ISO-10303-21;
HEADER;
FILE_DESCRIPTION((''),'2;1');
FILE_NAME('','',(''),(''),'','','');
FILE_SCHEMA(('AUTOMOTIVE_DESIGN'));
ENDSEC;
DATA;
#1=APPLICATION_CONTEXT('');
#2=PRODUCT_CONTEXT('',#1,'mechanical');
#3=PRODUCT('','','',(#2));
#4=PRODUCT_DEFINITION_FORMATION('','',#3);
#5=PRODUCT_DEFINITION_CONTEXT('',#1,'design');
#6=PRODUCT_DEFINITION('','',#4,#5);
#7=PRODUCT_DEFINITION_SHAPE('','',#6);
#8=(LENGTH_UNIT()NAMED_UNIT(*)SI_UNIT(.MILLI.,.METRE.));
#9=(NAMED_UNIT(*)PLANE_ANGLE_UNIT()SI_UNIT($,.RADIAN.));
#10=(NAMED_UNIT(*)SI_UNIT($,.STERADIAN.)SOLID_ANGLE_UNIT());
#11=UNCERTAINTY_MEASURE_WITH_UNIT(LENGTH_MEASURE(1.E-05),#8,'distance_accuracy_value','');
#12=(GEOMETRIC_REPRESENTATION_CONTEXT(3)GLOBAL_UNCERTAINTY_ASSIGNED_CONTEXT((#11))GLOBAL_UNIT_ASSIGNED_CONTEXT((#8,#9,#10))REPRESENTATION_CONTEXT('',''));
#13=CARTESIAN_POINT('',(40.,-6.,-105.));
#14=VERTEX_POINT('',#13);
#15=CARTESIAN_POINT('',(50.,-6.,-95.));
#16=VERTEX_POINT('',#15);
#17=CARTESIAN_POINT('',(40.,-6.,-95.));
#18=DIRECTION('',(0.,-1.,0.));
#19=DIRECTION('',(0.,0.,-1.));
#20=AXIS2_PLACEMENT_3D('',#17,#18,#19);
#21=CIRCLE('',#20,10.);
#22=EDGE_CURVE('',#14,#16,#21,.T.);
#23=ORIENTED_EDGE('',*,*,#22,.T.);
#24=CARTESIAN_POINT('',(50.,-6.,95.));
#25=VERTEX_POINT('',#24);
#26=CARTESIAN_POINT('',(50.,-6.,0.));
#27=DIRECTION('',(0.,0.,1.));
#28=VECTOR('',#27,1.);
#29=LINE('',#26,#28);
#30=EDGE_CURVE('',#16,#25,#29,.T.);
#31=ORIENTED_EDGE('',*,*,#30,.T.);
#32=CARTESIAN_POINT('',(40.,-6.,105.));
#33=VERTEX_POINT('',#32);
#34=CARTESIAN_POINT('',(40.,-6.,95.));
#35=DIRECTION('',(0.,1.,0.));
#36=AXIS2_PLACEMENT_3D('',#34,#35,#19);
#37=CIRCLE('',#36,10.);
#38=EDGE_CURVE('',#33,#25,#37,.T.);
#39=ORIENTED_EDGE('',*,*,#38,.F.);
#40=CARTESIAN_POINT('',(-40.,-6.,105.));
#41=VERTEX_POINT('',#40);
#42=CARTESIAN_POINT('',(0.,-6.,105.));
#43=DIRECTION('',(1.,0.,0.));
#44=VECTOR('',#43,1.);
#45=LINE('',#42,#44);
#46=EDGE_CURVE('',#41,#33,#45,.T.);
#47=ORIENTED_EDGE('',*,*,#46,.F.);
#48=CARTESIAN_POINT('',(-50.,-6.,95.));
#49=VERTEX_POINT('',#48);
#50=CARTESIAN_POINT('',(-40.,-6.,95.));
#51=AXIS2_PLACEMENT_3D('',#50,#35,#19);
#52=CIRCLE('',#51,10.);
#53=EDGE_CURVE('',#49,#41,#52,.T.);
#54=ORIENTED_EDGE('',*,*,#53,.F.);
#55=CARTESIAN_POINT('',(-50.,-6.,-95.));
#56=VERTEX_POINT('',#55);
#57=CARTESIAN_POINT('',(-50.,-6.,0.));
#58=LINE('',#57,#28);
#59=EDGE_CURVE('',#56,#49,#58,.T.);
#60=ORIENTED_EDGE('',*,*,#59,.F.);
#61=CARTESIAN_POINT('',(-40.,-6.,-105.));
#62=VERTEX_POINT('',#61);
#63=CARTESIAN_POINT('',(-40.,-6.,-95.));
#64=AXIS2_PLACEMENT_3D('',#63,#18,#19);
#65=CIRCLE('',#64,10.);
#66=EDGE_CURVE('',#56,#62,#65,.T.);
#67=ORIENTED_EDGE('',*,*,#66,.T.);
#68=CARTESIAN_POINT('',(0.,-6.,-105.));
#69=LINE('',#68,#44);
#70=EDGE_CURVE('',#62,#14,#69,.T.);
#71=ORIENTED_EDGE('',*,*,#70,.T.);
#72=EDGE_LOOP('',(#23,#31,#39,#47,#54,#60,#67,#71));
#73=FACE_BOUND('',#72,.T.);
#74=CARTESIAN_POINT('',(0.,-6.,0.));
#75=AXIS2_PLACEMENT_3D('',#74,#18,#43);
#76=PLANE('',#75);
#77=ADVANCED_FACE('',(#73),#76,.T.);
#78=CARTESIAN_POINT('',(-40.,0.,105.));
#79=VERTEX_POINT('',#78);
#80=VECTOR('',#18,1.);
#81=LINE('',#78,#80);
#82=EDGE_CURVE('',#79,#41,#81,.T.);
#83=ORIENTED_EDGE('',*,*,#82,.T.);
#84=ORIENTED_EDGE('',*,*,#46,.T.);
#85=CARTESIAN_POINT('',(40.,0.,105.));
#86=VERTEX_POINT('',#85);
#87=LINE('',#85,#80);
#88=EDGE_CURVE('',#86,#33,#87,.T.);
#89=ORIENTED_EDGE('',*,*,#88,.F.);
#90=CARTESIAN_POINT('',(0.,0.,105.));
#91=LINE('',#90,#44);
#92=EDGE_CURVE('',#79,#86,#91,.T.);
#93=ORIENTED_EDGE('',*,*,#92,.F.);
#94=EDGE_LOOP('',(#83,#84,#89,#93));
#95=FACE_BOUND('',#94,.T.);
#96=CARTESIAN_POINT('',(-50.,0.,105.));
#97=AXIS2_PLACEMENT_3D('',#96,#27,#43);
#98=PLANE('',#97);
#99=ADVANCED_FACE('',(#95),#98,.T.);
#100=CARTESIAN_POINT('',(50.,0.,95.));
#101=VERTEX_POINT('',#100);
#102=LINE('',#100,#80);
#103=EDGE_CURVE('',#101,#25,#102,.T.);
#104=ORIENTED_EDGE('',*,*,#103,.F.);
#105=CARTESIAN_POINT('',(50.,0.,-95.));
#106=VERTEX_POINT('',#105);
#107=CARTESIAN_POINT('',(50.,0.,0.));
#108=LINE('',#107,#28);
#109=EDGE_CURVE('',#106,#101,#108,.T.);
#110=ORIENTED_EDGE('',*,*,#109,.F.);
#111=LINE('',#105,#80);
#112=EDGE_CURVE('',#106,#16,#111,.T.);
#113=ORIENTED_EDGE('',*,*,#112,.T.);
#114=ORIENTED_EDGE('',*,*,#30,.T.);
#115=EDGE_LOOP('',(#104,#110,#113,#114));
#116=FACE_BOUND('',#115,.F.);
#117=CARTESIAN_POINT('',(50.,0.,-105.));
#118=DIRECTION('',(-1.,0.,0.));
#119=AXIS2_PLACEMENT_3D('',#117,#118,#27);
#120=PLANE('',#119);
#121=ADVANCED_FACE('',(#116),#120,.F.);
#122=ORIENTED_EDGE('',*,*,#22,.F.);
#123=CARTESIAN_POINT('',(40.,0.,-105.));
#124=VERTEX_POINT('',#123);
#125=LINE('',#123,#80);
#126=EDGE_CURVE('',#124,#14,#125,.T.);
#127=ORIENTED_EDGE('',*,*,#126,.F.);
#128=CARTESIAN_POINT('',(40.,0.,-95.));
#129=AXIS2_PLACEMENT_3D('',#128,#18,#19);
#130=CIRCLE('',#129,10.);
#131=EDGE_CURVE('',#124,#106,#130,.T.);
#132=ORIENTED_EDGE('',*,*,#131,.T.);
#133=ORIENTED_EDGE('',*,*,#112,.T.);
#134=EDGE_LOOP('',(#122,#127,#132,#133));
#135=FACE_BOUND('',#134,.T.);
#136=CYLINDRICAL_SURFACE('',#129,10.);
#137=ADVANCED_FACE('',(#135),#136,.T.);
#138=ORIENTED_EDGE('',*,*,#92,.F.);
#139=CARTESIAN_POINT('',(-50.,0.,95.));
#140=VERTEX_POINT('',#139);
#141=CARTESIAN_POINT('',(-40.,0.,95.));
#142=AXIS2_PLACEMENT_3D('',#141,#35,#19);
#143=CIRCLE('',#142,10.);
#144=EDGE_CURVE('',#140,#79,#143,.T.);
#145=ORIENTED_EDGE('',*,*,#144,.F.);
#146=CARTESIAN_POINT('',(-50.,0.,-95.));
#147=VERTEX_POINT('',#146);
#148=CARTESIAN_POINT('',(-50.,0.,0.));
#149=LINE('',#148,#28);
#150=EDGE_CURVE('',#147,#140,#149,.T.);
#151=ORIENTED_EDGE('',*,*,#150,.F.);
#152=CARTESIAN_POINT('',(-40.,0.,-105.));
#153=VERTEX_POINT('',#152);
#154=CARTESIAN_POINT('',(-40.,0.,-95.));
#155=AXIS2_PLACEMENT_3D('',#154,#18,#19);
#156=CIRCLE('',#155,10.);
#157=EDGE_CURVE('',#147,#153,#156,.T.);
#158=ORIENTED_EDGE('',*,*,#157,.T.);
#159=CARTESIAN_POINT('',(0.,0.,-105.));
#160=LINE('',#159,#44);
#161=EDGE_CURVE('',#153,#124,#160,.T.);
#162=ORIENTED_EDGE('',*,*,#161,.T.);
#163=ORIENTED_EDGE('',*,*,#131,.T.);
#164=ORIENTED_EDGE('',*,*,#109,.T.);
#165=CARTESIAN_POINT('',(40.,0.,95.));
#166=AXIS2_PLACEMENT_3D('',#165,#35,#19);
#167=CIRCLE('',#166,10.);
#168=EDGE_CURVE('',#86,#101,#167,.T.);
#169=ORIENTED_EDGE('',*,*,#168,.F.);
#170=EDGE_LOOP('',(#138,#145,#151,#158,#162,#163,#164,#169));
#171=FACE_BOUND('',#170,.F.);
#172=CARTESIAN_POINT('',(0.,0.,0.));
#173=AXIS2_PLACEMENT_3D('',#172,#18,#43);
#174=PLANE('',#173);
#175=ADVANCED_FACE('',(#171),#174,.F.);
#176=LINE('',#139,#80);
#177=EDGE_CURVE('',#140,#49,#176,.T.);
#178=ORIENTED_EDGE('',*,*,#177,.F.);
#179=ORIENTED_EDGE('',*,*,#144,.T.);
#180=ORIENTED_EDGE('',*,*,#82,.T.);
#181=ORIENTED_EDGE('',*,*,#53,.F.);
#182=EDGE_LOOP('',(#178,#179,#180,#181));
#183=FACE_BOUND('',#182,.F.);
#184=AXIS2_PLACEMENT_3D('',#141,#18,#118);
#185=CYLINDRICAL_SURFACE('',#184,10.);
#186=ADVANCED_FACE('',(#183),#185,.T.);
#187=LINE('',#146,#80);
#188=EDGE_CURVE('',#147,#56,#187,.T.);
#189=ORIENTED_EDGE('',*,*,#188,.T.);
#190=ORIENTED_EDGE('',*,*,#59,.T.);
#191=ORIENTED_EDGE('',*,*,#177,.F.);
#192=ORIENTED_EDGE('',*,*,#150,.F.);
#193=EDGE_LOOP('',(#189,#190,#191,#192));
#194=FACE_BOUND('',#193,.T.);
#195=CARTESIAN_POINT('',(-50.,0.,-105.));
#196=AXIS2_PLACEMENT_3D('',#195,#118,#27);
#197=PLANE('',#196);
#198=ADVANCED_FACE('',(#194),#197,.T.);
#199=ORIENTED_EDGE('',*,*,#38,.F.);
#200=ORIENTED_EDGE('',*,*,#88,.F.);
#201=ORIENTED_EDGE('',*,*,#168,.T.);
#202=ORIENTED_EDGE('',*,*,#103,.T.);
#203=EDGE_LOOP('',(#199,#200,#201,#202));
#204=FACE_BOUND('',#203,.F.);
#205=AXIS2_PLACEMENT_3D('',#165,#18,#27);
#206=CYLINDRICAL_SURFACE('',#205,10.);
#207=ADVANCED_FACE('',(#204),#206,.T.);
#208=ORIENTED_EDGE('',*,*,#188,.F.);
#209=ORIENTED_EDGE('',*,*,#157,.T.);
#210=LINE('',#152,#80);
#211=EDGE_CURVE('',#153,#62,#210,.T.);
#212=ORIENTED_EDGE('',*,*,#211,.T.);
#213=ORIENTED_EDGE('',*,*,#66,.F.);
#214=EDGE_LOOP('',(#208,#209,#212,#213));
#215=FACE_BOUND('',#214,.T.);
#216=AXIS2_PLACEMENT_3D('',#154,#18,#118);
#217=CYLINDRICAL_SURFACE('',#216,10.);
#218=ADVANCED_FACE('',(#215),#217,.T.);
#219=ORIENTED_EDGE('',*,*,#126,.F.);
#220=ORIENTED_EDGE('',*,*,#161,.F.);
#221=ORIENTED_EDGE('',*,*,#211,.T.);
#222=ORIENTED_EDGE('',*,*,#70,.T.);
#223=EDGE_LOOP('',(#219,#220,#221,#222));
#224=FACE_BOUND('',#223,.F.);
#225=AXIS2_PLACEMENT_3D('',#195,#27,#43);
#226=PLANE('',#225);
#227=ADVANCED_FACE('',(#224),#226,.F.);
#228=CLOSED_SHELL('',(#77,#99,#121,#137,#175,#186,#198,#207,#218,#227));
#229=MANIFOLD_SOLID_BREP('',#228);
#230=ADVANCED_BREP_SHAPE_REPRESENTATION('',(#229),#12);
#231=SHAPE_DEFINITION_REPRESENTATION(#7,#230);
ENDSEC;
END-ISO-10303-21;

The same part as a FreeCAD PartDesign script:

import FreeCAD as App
import Part
import Sketcher


def edges_at(feature, points):
    """Names of the edges that pass closest to the given points."""
    edges = feature.Shape.Edges
    near = lambda p: min(range(len(edges)), key=lambda i: edges[i].distToShape(Part.Vertex(*p))[0])
    return sorted({f"Edge{near(p) + 1}" for p in points})

doc = App.newDocument("Part")
body = doc.addObject("PartDesign::Body", "Body")

# Sketch on XZ plane
sketch1 = body.newObject("Sketcher::SketchObject", "Sketch")
sketch1.AttachmentSupport = (doc.getObject("XZ_Plane"), [""])
sketch1.MapMode = "FlatFace"
sketch1.addGeometry([
    Part.LineSegment(App.Vector(-50, 105, 0), App.Vector(-50, -105, 0)),
    Part.LineSegment(App.Vector(-50, -105, 0), App.Vector(50, -105, 0)),
    Part.LineSegment(App.Vector(50, -105, 0), App.Vector(50, 105, 0)),
    Part.LineSegment(App.Vector(50, 105, 0), App.Vector(-50, 105, 0)),
], False)
sketch1.addConstraint([
    Sketcher.Constraint("Coincident", 0, 2, 1, 1),
    Sketcher.Constraint("Coincident", 1, 2, 2, 1),
    Sketcher.Constraint("Coincident", 2, 2, 3, 1),
    Sketcher.Constraint("Coincident", 3, 2, 0, 1),
    Sketcher.Constraint("Vertical", 0),
    Sketcher.Constraint("Horizontal", 1),
    Sketcher.Constraint("Vertical", 2),
    Sketcher.Constraint("Horizontal", 3),
    Sketcher.Constraint("Symmetric", 0, 2, 2, 2, -1, 1),
    Sketcher.Constraint("DistanceX", 1, 1, 1, 2, 100.0),
    Sketcher.Constraint("DistanceY", 0, 2, 0, 1, 210.0),
])
pad1 = body.newObject("PartDesign::Pad", "Pad")
pad1.Profile = sketch1
pad1.Length = 6
doc.recompute()

fillet = body.newObject("PartDesign::Fillet", "Fillet")
fillet.Base = (pad1, edges_at(pad1, [(-50, -3, -105), (50, -3, -105)]))
fillet.Radius = 10
doc.recompute()

fillet2 = body.newObject("PartDesign::Fillet", "Fillet001")
fillet2.Base = (fillet, edges_at(fillet, [(-50, -3, 105), (50, -3, 105)]))
fillet2.Radius = 10

doc.recompute()
